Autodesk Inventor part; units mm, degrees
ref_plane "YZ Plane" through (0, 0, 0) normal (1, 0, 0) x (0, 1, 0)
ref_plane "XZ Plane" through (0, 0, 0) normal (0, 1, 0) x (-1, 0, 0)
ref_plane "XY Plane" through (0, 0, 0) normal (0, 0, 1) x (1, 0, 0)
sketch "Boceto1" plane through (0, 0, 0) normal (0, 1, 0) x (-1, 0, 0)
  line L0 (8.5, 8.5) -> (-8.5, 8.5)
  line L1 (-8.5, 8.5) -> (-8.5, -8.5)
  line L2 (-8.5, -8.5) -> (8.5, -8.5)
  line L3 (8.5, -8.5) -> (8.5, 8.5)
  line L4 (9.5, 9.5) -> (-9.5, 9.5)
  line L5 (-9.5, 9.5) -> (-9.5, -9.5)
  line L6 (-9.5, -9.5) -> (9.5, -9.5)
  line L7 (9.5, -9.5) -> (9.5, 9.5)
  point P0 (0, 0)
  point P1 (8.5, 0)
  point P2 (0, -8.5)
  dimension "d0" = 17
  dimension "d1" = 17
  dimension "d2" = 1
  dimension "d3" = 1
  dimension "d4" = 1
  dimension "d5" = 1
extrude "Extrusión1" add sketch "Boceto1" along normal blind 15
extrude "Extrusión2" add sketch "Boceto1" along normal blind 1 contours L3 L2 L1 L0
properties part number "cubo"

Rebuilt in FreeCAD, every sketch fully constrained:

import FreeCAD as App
import Part
import Sketcher

V = App.Vector
Q = App.Units.Quantity


def add_polygon(sketch, points):
    """Adds a closed chain of lines whose ends are joined by coincident constraints."""
    first, n = sketch.GeometryCount, len(points)
    for a, b in zip(points, points[1:] + points[:1]):
        sketch.addGeometry(Part.LineSegment(App.Vector(*a, 0), App.Vector(*b, 0)), False)
    for i in range(n):
        sketch.addConstraint(Sketcher.Constraint("Coincident", first + i, 2, first + (i + 1) % n, 1))

doc = App.newDocument("Part")
body = doc.addObject("PartDesign::Body", "Body")

# Sketch on XZ plane
sketch1 = doc.addObject("Sketcher::SketchObject", "Sketch")
body.addObject(sketch1)
sketch1.AttachmentSupport = (doc.XZ_Plane, [""])
sketch1.MapMode = "FlatFace"
add_polygon(sketch1, [(-10, -10), (-10, 10), (10, 10), (10, -10)])  # lines 0-3
add_polygon(sketch1, [(8, 8), (-8, 8), (-8, -8), (8, -8)])  # lines 4-7
sketch1.addConstraint(Sketcher.Constraint("Vertical", 0))
sketch1.addConstraint(Sketcher.Constraint("Horizontal", 1))
sketch1.addConstraint(Sketcher.Constraint("Vertical", 2))
sketch1.addConstraint(Sketcher.Constraint("Horizontal", 3))
sketch1.addConstraint(Sketcher.Constraint("Horizontal", 4))
sketch1.addConstraint(Sketcher.Constraint("Vertical", 5))
sketch1.addConstraint(Sketcher.Constraint("Horizontal", 6))
sketch1.addConstraint(Sketcher.Constraint("Vertical", 7))
sketch1.addConstraint(Sketcher.Constraint("Symmetric", 0, 2, 2, 2, -1, 1))
sketch1.addConstraint(Sketcher.Constraint("Symmetric", 4, 2, 6, 2, -1, 1))
sketch1.addConstraint(Sketcher.Constraint("Equal", 3, 0))
sketch1.addConstraint(Sketcher.Constraint("Equal", 6, 5))
sketch1.addConstraint(Sketcher.Constraint("DistanceX", 4, 2, 4, 1, Q("17 mm")))
sketch1.addConstraint(Sketcher.Constraint("DistanceX", 0, 2, 4, 2, Q("1 mm")))
pad1 = doc.addObject("PartDesign::Pad", "Pad")
body.addObject(pad1)
pad1.Profile = sketch1
pad1.Length = 15
pad1.Reversed = True

# Sketch on XZ plane
sketch2 = doc.addObject("Sketcher::SketchObject", "Sketch001")
body.addObject(sketch2)
sketch2.AttachmentSupport = (doc.XZ_Plane, [""])
sketch2.MapMode = "FlatFace"
add_polygon(sketch2, [(-8, -8), (-8, 8), (8, 8), (8, -8)])  # lines 0-3
sketch2.addConstraint(Sketcher.Constraint("Vertical", 0))
sketch2.addConstraint(Sketcher.Constraint("Horizontal", 1))
sketch2.addConstraint(Sketcher.Constraint("Vertical", 2))
sketch2.addConstraint(Sketcher.Constraint("Horizontal", 3))
sketch2.addConstraint(Sketcher.Constraint("Symmetric", 0, 2, 2, 2, -1, 1))
sketch2.addConstraint(Sketcher.Constraint("Equal", 3, 0))
sketch2.addConstraint(Sketcher.Constraint("DistanceX", 1, 1, 1, 2, Q("17 mm")))
pad2 = doc.addObject("PartDesign::Pad", "Pad001")
body.addObject(pad2)
pad2.Profile = sketch2
pad2.Length = 1
pad2.Reversed = True

doc.recompute()
